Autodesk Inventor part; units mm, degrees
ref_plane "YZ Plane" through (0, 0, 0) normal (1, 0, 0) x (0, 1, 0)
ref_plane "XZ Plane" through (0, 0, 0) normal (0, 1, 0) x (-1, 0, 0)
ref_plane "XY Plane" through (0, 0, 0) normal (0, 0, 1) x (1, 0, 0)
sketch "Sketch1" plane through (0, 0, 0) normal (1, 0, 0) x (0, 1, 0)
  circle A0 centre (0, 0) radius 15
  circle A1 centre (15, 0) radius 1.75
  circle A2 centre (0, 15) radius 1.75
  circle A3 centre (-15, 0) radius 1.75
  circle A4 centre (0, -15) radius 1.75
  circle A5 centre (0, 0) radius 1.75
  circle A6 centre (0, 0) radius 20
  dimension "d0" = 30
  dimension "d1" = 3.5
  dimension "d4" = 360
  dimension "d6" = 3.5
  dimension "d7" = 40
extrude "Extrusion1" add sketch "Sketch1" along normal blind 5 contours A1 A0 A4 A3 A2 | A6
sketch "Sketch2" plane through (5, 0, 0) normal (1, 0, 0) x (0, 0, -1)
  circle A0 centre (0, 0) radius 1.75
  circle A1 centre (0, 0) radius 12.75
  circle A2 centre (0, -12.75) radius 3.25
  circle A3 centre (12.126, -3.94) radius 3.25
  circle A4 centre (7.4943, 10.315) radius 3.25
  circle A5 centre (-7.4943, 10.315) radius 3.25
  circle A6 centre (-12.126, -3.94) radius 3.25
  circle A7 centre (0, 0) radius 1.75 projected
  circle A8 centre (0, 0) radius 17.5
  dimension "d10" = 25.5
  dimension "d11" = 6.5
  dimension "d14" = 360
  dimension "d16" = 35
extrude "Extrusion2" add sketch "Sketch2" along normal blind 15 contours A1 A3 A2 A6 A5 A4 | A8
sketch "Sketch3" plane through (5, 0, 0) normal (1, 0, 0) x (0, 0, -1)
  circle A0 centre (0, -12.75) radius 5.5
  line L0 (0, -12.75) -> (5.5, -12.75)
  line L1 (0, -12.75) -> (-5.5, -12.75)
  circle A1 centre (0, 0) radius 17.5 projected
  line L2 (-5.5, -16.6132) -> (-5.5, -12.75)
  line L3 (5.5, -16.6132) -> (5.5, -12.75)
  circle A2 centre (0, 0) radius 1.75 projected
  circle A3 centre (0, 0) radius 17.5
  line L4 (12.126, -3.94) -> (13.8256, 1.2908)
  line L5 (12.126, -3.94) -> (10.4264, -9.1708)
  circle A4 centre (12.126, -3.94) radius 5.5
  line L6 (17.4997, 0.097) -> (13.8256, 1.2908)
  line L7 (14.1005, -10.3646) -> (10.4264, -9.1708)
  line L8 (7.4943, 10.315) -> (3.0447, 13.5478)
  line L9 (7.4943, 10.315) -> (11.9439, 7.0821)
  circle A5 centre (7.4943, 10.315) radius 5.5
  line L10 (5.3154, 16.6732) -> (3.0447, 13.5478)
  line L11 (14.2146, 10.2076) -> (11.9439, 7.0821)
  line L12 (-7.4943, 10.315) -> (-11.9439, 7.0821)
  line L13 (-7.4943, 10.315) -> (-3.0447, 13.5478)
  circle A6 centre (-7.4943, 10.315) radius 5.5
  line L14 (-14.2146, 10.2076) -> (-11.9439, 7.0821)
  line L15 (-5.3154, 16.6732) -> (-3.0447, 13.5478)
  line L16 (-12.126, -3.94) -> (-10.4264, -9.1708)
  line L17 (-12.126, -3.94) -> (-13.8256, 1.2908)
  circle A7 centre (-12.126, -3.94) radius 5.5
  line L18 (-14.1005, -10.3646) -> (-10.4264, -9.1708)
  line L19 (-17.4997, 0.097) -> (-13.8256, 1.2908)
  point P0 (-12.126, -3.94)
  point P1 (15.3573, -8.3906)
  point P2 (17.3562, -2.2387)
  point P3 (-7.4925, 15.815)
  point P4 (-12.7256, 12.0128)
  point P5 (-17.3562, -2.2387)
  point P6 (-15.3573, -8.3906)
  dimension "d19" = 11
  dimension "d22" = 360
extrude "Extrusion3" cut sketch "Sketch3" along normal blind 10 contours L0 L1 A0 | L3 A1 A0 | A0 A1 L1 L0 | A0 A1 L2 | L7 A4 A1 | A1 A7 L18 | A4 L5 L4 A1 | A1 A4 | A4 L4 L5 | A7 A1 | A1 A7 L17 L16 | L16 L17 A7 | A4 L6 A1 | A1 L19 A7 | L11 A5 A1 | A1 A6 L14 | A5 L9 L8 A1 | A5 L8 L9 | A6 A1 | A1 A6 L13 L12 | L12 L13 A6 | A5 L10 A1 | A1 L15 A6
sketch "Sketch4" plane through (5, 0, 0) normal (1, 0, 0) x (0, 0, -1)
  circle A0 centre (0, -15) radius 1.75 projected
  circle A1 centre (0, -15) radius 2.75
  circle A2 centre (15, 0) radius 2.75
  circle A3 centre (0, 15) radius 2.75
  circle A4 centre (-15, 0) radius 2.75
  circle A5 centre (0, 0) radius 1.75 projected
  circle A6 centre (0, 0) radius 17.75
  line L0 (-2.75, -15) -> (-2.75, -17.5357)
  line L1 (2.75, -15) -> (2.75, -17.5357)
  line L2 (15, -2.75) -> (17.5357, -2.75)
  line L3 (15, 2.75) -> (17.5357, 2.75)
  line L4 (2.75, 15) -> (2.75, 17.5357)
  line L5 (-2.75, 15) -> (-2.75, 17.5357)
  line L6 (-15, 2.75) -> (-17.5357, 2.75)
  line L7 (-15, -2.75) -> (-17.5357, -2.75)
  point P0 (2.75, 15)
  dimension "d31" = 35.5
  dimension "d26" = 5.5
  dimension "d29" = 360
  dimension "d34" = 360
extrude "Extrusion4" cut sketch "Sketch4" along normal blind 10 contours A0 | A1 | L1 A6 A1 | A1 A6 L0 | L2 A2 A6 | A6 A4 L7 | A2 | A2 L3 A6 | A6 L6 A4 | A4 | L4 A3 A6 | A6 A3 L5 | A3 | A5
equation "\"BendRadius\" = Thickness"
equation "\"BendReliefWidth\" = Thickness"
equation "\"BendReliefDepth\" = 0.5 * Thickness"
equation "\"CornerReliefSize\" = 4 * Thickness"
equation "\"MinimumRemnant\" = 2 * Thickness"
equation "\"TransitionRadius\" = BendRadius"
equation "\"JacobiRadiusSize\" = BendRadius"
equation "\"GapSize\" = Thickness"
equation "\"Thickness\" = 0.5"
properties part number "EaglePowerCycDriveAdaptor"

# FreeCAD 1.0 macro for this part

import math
import FreeCAD as App
import Part
import Sketcher
from FreeCAD import Vector
Q = App.Units.Quantity

doc = App.newDocument("Part")
body = doc.addObject("PartDesign::Body", "Body")

sketch1 = body.newObject("Sketcher::SketchObject", "Sketch")
sketch1.AttachmentSupport = (doc.getObject("YZ_Plane"), [""])
sketch1.MapMode = "FlatFace"
sketch1.addGeometry(Part.Circle(Vector(0, 0, 0), Vector(0, 0, 1), 20), False)
sketch1.addGeometry(Part.Circle(Vector(15, 0, 0), Vector(0, 0, 1), 1.8), False)
sketch1.addGeometry(Part.Circle(Vector(0, -15, 0), Vector(0, 0, 1), 1.8), False)
sketch1.addGeometry(Part.Circle(Vector(-15, 0, 0), Vector(0, 0, 1), 1.8), False)
sketch1.addGeometry(Part.Circle(Vector(0, 15, 0), Vector(0, 0, 1), 1.8), False)
sketch1.addGeometry(Part.Circle(Vector(0, 0, 0), Vector(0, 0, 1), 1.8), False)
sketch1.addConstraint(Sketcher.Constraint("Coincident", 0, 3, -1, 1))
sketch1.addConstraint(Sketcher.Constraint("Coincident", 5, 3, -1, 1))
sketch1.addConstraint(Sketcher.Constraint("Equal", 1, 2))
sketch1.addConstraint(Sketcher.Constraint("Equal", 2, 3))
sketch1.addConstraint(Sketcher.Constraint("Equal", 3, 4))
sketch1.addConstraint(Sketcher.Constraint("Equal", 4, 5))
sketch1.addConstraint(Sketcher.Constraint("Symmetric", 1, 3, 3, 3, -1, 1))
sketch1.addConstraint(Sketcher.Constraint("Symmetric", 2, 3, 4, 3, -1, 1))
sketch1.addConstraint(Sketcher.Constraint("PointOnObject", 1, 3, -1))
sketch1.addConstraint(Sketcher.Constraint("PointOnObject", 2, 3, -2))
sketch1.addConstraint(Sketcher.Constraint("Diameter", 0, Q("40 mm")))
sketch1.addConstraint(Sketcher.Constraint("Diameter", 1, Q("3.5 mm")))
sketch1.addConstraint(Sketcher.Constraint("DistanceX", 3, 3, 1, 3, Q("30 mm")))
sketch1.addConstraint(Sketcher.Constraint("DistanceY", 2, 3, 4, 3, Q("30 mm")))
pad1 = body.newObject("PartDesign::Pad", "Pad")
pad1.Profile = sketch1
pad1.Length = 5

sketch2 = body.newObject("Sketcher::SketchObject", "Sketch001")
sketch2.AttachmentSupport = (doc.getObject("YZ_Plane"), [""])
sketch2.MapMode = "FlatFace"
sketch2.AttachmentOffset = App.Placement(Vector(0, 0, 5), App.Rotation())
sketch2.addGeometry(Part.Circle(Vector(0, 0, 0), Vector(0, 0, 1), 17.5), False)
sketch2.addGeometry(Part.Circle(Vector(-3.9, -12.1, 0), Vector(0, 0, 1), 3.2), False)
sketch2.addGeometry(Part.Circle(Vector(-12.8, 0, 0), Vector(0, 0, 1), 3.2), False)
sketch2.addGeometry(Part.Circle(Vector(-3.9, 12.1, 0), Vector(0, 0, 1), 3.2), False)
sketch2.addGeometry(Part.Circle(Vector(10.3, 7.5, 0), Vector(0, 0, 1), 3.2), False)
sketch2.addGeometry(Part.Circle(Vector(10.3, -7.5, 0), Vector(0, 0, 1), 3.2), False)
sketch2.addGeometry(Part.Circle(Vector(0, 0, 0), Vector(0, 0, 1), 1.8), False)
sketch2.addConstraint(Sketcher.Constraint("Coincident", 0, 3, -1, 1))
sketch2.addConstraint(Sketcher.Constraint("Coincident", 6, 3, -1, 1))
sketch2.addConstraint(Sketcher.Constraint("Equal", 1, 2))
sketch2.addConstraint(Sketcher.Constraint("Equal", 2, 3))
sketch2.addConstraint(Sketcher.Constraint("Equal", 3, 4))
sketch2.addConstraint(Sketcher.Constraint("Equal", 4, 5))
sketch2.addConstraint(Sketcher.Constraint("Symmetric", 1, 3, 3, 3, -1))
sketch2.addConstraint(Sketcher.Constraint("Symmetric", 4, 3, 5, 3, -1))
sketch2.addConstraint(Sketcher.Constraint("PointOnObject", 2, 3, -1))
sketch2.addConstraint(Sketcher.Constraint("Diameter", 0, Q("35 mm")))
sketch2.addConstraint(Sketcher.Constraint("Diameter", 1, Q("6.5 mm")))
sketch2.addConstraint(Sketcher.Constraint("Diameter", 6, Q("3.5 mm")))
sketch2.addConstraint(Sketcher.Constraint("DistanceX", 1, 3, -1, 1, Q("3.94 mm")))
sketch2.addConstraint(Sketcher.Constraint("DistanceX", 2, 3, -1, 1, Q("12.75 mm")))
sketch2.addConstraint(Sketcher.Constraint("DistanceY", 1, 3, -1, 1, Q("12.126 mm")))
sketch2.addConstraint(Sketcher.Constraint("DistanceX", -1, 1, 4, 3, Q("10.315 mm")))
sketch2.addConstraint(Sketcher.Constraint("DistanceY", -1, 1, 4, 3, Q("7.4943 mm")))
pad2 = body.newObject("PartDesign::Pad", "Pad001")
pad2.Profile = sketch2
pad2.Length = 15

sketch3 = body.newObject("Sketcher::SketchObject", "Sketch002")
sketch3.AttachmentSupport = (doc.getObject("YZ_Plane"), [""])
sketch3.MapMode = "FlatFace"
sketch3.AttachmentOffset = App.Placement(Vector(0, 0, 5), App.Rotation())
sketch3.addGeometry(Part.ArcOfCircle(Part.Circle(Vector(-12.8, 0, 0), Vector(0, 0, 1), 5.5), math.radians(-90), math.radians(90)), False)
sketch3.addGeometry(Part.LineSegment(Vector(-12.8, 5.5, 0), Vector(-16.6, 5.5, 0)), False)
sketch3.addGeometry(Part.ArcOfCircle(Part.Circle(Vector(0, 0, 0), Vector(0, 0, 1), 17.5), math.radians(162), math.radians(198)), False)
sketch3.addGeometry(Part.LineSegment(Vector(-16.6, -5.5, 0), Vector(-12.8, -5.5, 0)), False)
sketch3.addGeometry(Part.LineSegment(Vector(-9.2, -10.4, 0), Vector(-10.4, -14.1, 0)), False)
sketch3.addGeometry(Part.ArcOfCircle(Part.Circle(Vector(0, 0, 0), Vector(0, 0, 1), 17.5), math.radians(-126.32), math.radians(-118.65)), False)
sketch3.addGeometry(Part.ArcOfCircle(Part.Circle(Vector(-3.9, -12.1, 0), Vector(0, 0, 1), 5.5), math.radians(-144), math.radians(-72)), False)
sketch3.addGeometry(Part.ArcOfCircle(Part.Circle(Vector(0, 0, 0), Vector(0, 0, 1), 17.5), math.radians(-97.35), math.radians(-89.68)), False)
sketch3.addGeometry(Part.LineSegment(Vector(0.1, -17.5, 0), Vector(1.3, -13.8, 0)), False)
sketch3.addGeometry(Part.ArcOfCircle(Part.Circle(Vector(-3.9, -12.1, 0), Vector(0, 0, 1), 5.5), math.radians(-18), math.radians(162)), False)
sketch3.addGeometry(Part.ArcOfCircle(Part.Circle(Vector(0, 0, 0), Vector(0, 0, 1), 17.5), math.radians(118.65), math.radians(126.32)), False)
sketch3.addGeometry(Part.LineSegment(Vector(-10.4, 14.1, 0), Vector(-9.2, 10.4, 0)), False)
sketch3.addGeometry(Part.ArcOfCircle(Part.Circle(Vector(-3.9, 12.1, 0), Vector(0, 0, 1), 5.5), math.radians(-162), math.radians(18)), False)
sketch3.addGeometry(Part.LineSegment(Vector(1.3, 13.8, 0), Vector(0.1, 17.5, 0)), False)
sketch3.addGeometry(Part.ArcOfCircle(Part.Circle(Vector(0, 0, 0), Vector(0, 0, 1), 17.5), math.radians(89.68), math.radians(97.35)), False)
sketch3.addGeometry(Part.ArcOfCircle(Part.Circle(Vector(-3.9, 12.1, 0), Vector(0, 0, 1), 5.5), math.radians(72), math.radians(144)), False)
sketch3.addGeometry(Part.LineSegment(Vector(7.1, -11.9, 0), Vector(10.2, -14.2, 0)), False)
sketch3.addGeometry(Part.ArcOfCircle(Part.Circle(Vector(0, 0, 0), Vector(0, 0, 1), 17.5), math.radians(-54), math.radians(-18)), False)
sketch3.addGeometry(Part.LineSegment(Vector(16.7, -5.3, 0), Vector(13.5, -3, 0)), False)
sketch3.addGeometry(Part.ArcOfCircle(Part.Circle(Vector(10.3, -7.5, 0), Vector(0, 0, 1), 5.5), math.radians(54), math.radians(234)), False)
sketch3.addGeometry(Part.ArcOfCircle(Part.Circle(Vector(0, 0, 0), Vector(0, 0, 1), 17.5), math.radians(46.65), math.radians(54.32)), False)
sketch3.addGeometry(Part.LineSegment(Vector(10.2, 14.2, 0), Vector(7.1, 11.9, 0)), False)
sketch3.addGeometry(Part.ArcOfCircle(Part.Circle(Vector(10.3, 7.5, 0), Vector(0, 0, 1), 5.5), math.radians(126), math.radians(306)), False)
sketch3.addGeometry(Part.LineSegment(Vector(13.5, 3, 0), Vector(16.7, 5.3, 0)), False)
sketch3.addGeometry(Part.ArcOfCircle(Part.Circle(Vector(0, 0, 0), Vector(0, 0, 1), 17.5), math.radians(17.68), math.radians(25.35)), False)
sketch3.addGeometry(Part.ArcOfCircle(Part.Circle(Vector(10.3, 7.5, 0), Vector(0, 0, 1), 5.5), math.radians(0), math.radians(72)), False)
sketch3.addConstraint(Sketcher.Constraint("Tangent", 0, 2, 1, 1))
sketch3.addConstraint(Sketcher.Constraint("Coincident", 1, 2, 2, 1))
sketch3.addConstraint(Sketcher.Constraint("Coincident", 2, 2, 3, 1))
sketch3.addConstraint(Sketcher.Constraint("Tangent", 3, 2, 0, 1))
sketch3.addConstraint(Sketcher.Constraint("Coincident", 4, 2, 5, 1))
sketch3.addConstraint(Sketcher.Constraint("Coincident", 5, 2, 6, 1))
sketch3.addConstraint(Sketcher.Constraint("Coincident", 6, 2, 7, 1))
sketch3.addConstraint(Sketcher.Constraint("Coincident", 7, 2, 8, 1))
sketch3.addConstraint(Sketcher.Constraint("Tangent", 8, 2, 9, 1))
sketch3.addConstraint(Sketcher.Constraint("Tangent", 9, 2, 4, 1))
sketch3.addConstraint(Sketcher.Constraint("Coincident", 10, 2, 11, 1))
sketch3.addConstraint(Sketcher.Constraint("Tangent", 11, 2, 12, 1))
sketch3.addConstraint(Sketcher.Constraint("Tangent", 12, 2, 13, 1))
sketch3.addConstraint(Sketcher.Constraint("Coincident", 13, 2, 14, 1))
sketch3.addConstraint(Sketcher.Constraint("Coincident", 14, 2, 15, 1))
sketch3.addConstraint(Sketcher.Constraint("Coincident", 15, 2, 10, 1))
sketch3.addConstraint(Sketcher.Constraint("Coincident", 16, 2, 17, 1))
sketch3.addConstraint(Sketcher.Constraint("Coincident", 17, 2, 18, 1))
sketch3.addConstraint(Sketcher.Constraint("Tangent", 18, 2, 19, 1))
sketch3.addConstraint(Sketcher.Constraint("Tangent", 19, 2, 16, 1))
sketch3.addConstraint(Sketcher.Constraint("Coincident", 20, 2, 21, 1))
sketch3.addConstraint(Sketcher.Constraint("Tangent", 21, 2, 22, 1))
sketch3.addConstraint(Sketcher.Constraint("Tangent", 22, 2, 23, 1))
sketch3.addConstraint(Sketcher.Constraint("Coincident", 23, 2, 24, 1))
sketch3.addConstraint(Sketcher.Constraint("Coincident", 24, 2, 25, 1))
sketch3.addConstraint(Sketcher.Constraint("Coincident", 25, 2, 20, 1))
sketch3.addConstraint(Sketcher.Constraint("Horizontal", 1))
sketch3.addConstraint(Sketcher.Constraint("Horizontal", 3))
sketch3.addConstraint(Sketcher.Constraint("Coincident", 2, 3, -1, 1))
sketch3.addConstraint(Sketcher.Constraint("Coincident", 5, 3, -1, 1))
sketch3.addConstraint(Sketcher.Constraint("Coincident", 7, 3, -1, 1))
sketch3.addConstraint(Sketcher.Constraint("Coincident", 10, 3, -1, 1))
sketch3.addConstraint(Sketcher.Constraint("Coincident", 14, 3, -1, 1))
sketch3.addConstraint(Sketcher.Constraint("Coincident", 17, 3, -1, 1))
sketch3.addConstraint(Sketcher.Constraint("Coincident", 20, 3, -1, 1))
sketch3.addConstraint(Sketcher.Constraint("Coincident", 24, 3, -1, 1))
sketch3.addConstraint(Sketcher.Constraint("Coincident", 9, 3, 6, 3))
sketch3.addConstraint(Sketcher.Constraint("Coincident", 15, 3, 12, 3))
sketch3.addConstraint(Sketcher.Constraint("Coincident", 25, 3, 22, 3))
sketch3.addConstraint(Sketcher.Constraint("Equal", 2, 5))
sketch3.addConstraint(Sketcher.Constraint("Equal", 0, 6))
sketch3.addConstraint(Sketcher.Constraint("Equal", 5, 7))
sketch3.addConstraint(Sketcher.Constraint("Equal", 6, 9))
sketch3.addConstraint(Sketcher.Constraint("Equal", 7, 10))
sketch3.addConstraint(Sketcher.Constraint("Equal", 9, 12))
sketch3.addConstraint(Sketcher.Constraint("Equal", 10, 14))
sketch3.addConstraint(Sketcher.Constraint("Equal", 12, 15))
sketch3.addConstraint(Sketcher.Constraint("Equal", 14, 17))
sketch3.addConstraint(Sketcher.Constraint("Equal", 15, 19))
sketch3.addConstraint(Sketcher.Constraint("Equal", 17, 20))
sketch3.addConstraint(Sketcher.Constraint("Equal", 19, 22))
sketch3.addConstraint(Sketcher.Constraint("Equal", 20, 24))
sketch3.addConstraint(Sketcher.Constraint("Equal", 22, 25))
sketch3.addConstraint(Sketcher.Constraint("Symmetric", 6, 3, 12, 3, -1))
sketch3.addConstraint(Sketcher.Constraint("Symmetric", 19, 3, 22, 3, -1))
sketch3.addConstraint(Sketcher.Constraint("PointOnObject", 0, 3, -1))
sketch3.addConstraint(Sketcher.Constraint("Parallel", 4, 8))
sketch3.addConstraint(Sketcher.Constraint("Parallel", 11, 13))
sketch3.addConstraint(Sketcher.Constraint("Parallel", 16, 18))
sketch3.addConstraint(Sketcher.Constraint("Parallel", 21, 23))
sketch3.addConstraint(Sketcher.Constraint("Vertical", 4, 2, 10, 2))
sketch3.addConstraint(Sketcher.Constraint("Vertical", 16, 2, 20, 2))
sketch3.addConstraint(Sketcher.Constraint("Equal", 4, 8))
sketch3.addConstraint(Sketcher.Constraint("Equal", 13, 16))
sketch3.addConstraint(Sketcher.Constraint("Equal", 16, 18))
sketch3.addConstraint(Sketcher.Constraint("Radius", 0, Q("5.5 mm")))
sketch3.addConstraint(Sketcher.Constraint("Radius", 2, Q("17.5 mm")))
sketch3.addConstraint(Sketcher.Constraint("Angle", 4, Q("-108.0002 deg")))
sketch3.addConstraint(Sketcher.Constraint("Angle", 18, Q("144.0004 deg")))
sketch3.addConstraint(Sketcher.Constraint("DistanceX", 0, 3, -1, 1, Q("12.75 mm")))
sketch3.addConstraint(Sketcher.Constraint("DistanceX", 6, 3, -1, 1, Q("3.94 mm")))
pocket1 = body.newObject("PartDesign::Pocket", "Pocket")
pocket1.Profile = sketch3
pocket1.Length = 10
pocket1.Reversed = True

sketch4 = body.newObject("Sketcher::SketchObject", "Sketch003")
sketch4.AttachmentSupport = (doc.getObject("YZ_Plane"), [""])
sketch4.MapMode = "FlatFace"
sketch4.AttachmentOffset = App.Placement(Vector(0, 0, 5), App.Rotation())
sketch4.addGeometry(Part.ArcOfCircle(Part.Circle(Vector(-15, 0, 0), Vector(0, 0, 1), 2.8), math.radians(-90), math.radians(90)), False)
sketch4.addGeometry(Part.LineSegment(Vector(-15, 2.8, 0), Vector(-17.5, 2.8, 0)), False)
sketch4.addGeometry(Part.ArcOfCircle(Part.Circle(Vector(0, 0, 0), Vector(0, 0, 1), 17.8), math.radians(171.09), math.radians(188.91)), False)
sketch4.addGeometry(Part.LineSegment(Vector(-17.5, -2.8, 0), Vector(-15, -2.8, 0)), False)
sketch4.addGeometry(Part.LineSegment(Vector(-2.8, -15, 0), Vector(-2.8, -17.5, 0)), False)
sketch4.addGeometry(Part.ArcOfCircle(Part.Circle(Vector(0, 0, 0), Vector(0, 0, 1), 17.8), math.radians(-98.91), math.radians(-81.09)), False)
sketch4.addGeometry(Part.LineSegment(Vector(2.8, -17.5, 0), Vector(2.8, -15, 0)), False)
sketch4.addGeometry(Part.ArcOfCircle(Part.Circle(Vector(0, -15, 0), Vector(0, 0, 1), 2.8), math.radians(0), math.radians(180)), False)
sketch4.addGeometry(Part.LineSegment(Vector(-2.8, 17.5, 0), Vector(-2.8, 15, 0)), False)
sketch4.addGeometry(Part.ArcOfCircle(Part.Circle(Vector(0, 15, 0), Vector(0, 0, 1), 2.8), math.radians(180), math.radians(360)), False)
sketch4.addGeometry(Part.LineSegment(Vector(2.8, 15, 0), Vector(2.8, 17.5, 0)), False)
sketch4.addGeometry(Part.ArcOfCircle(Part.Circle(Vector(0, 0, 0), Vector(0, 0, 1), 17.8), math.radians(81.09), math.radians(98.91)), False)
sketch4.addGeometry(Part.LineSegment(Vector(15, -2.8, 0), Vector(17.5, -2.8, 0)), False)
sketch4.addGeometry(Part.ArcOfCircle(Part.Circle(Vector(0, 0, 0), Vector(0, 0, 1), 17.8), math.radians(-8.91), math.radians(8.91)), False)
sketch4.addGeometry(Part.LineSegment(Vector(17.5, 2.8, 0), Vector(15, 2.8, 0)), False)
sketch4.addGeometry(Part.ArcOfCircle(Part.Circle(Vector(15, 0, 0), Vector(0, 0, 1), 2.8), math.radians(90), math.radians(270)), False)
sketch4.addGeometry(Part.Circle(Vector(0, 0, 0), Vector(0, 0, 1), 1.8), False)
sketch4.addConstraint(Sketcher.Constraint("Tangent", 0, 2, 1, 1))
sketch4.addConstraint(Sketcher.Constraint("Coincident", 1, 2, 2, 1))
sketch4.addConstraint(Sketcher.Constraint("Coincident", 2, 2, 3, 1))
sketch4.addConstraint(Sketcher.Constraint("Tangent", 3, 2, 0, 1))
sketch4.addConstraint(Sketcher.Constraint("Coincident", 4, 2, 5, 1))
sketch4.addConstraint(Sketcher.Constraint("Coincident", 5, 2, 6, 1))
sketch4.addConstraint(Sketcher.Constraint("Tangent", 6, 2, 7, 1))
sketch4.addConstraint(Sketcher.Constraint("Tangent", 7, 2, 4, 1))
sketch4.addConstraint(Sketcher.Constraint("Tangent", 8, 2, 9, 1))
sketch4.addConstraint(Sketcher.Constraint("Tangent", 9, 2, 10, 1))
sketch4.addConstraint(Sketcher.Constraint("Coincident", 10, 2, 11, 1))
sketch4.addConstraint(Sketcher.Constraint("Coincident", 11, 2, 8, 1))
sketch4.addConstraint(Sketcher.Constraint("Coincident", 12, 2, 13, 1))
sketch4.addConstraint(Sketcher.Constraint("Coincident", 13, 2, 14, 1))
sketch4.addConstraint(Sketcher.Constraint("Tangent", 14, 2, 15, 1))
sketch4.addConstraint(Sketcher.Constraint("Tangent", 15, 2, 12, 1))
sketch4.addConstraint(Sketcher.Constraint("Horizontal", 1))
sketch4.addConstraint(Sketcher.Constraint("Horizontal", 3))
sketch4.addConstraint(Sketcher.Constraint("Vertical", 4))
sketch4.addConstraint(Sketcher.Constraint("Vertical", 6))
sketch4.addConstraint(Sketcher.Constraint("Vertical", 8))
sketch4.addConstraint(Sketcher.Constraint("Vertical", 10))
sketch4.addConstraint(Sketcher.Constraint("Horizontal", 12))
sketch4.addConstraint(Sketcher.Constraint("Horizontal", 14))
sketch4.addConstraint(Sketcher.Constraint("Coincident", 2, 3, -1, 1))
sketch4.addConstraint(Sketcher.Constraint("Coincident", 5, 3, -1, 1))
sketch4.addConstraint(Sketcher.Constraint("Coincident", 11, 3, -1, 1))
sketch4.addConstraint(Sketcher.Constraint("Coincident", 13, 3, -1, 1))
sketch4.addConstraint(Sketcher.Constraint("Coincident", 16, 3, -1, 1))
sketch4.addConstraint(Sketcher.Constraint("Equal", 2, 5))
sketch4.addConstraint(Sketcher.Constraint("Equal", 0, 7))
sketch4.addConstraint(Sketcher.Constraint("Equal", 7, 9))
sketch4.addConstraint(Sketcher.Constraint("Equal", 5, 11))
sketch4.addConstraint(Sketcher.Constraint("Equal", 11, 13))
sketch4.addConstraint(Sketcher.Constraint("Equal", 9, 15))
sketch4.addConstraint(Sketcher.Constraint("Symmetric", 7, 3, 9, 3, -1, 1))
sketch4.addConstraint(Sketcher.Constraint("Symmetric", 0, 3, 15, 3, -1, 1))
sketch4.addConstraint(Sketcher.Constraint("PointOnObject", 0, 3, -1))
sketch4.addConstraint(Sketcher.Constraint("PointOnObject", 7, 3, -2))
sketch4.addConstraint(Sketcher.Constraint("Equal", 14, 4))
sketch4.addConstraint(Sketcher.Constraint("Radius", 0, Q("2.75 mm")))
sketch4.addConstraint(Sketcher.Constraint("Radius", 2, Q("17.75 mm")))
sketch4.addConstraint(Sketcher.Constraint("Diameter", 16, Q("3.5 mm")))
sketch4.addConstraint(Sketcher.Constraint("DistanceX", 0, 3, -1, 1, Q("15 mm")))
pocket2 = body.newObject("PartDesign::Pocket", "Pocket001")
pocket2.Profile = sketch4
pocket2.Length = 10
pocket2.Reversed = True

doc.recompute()
